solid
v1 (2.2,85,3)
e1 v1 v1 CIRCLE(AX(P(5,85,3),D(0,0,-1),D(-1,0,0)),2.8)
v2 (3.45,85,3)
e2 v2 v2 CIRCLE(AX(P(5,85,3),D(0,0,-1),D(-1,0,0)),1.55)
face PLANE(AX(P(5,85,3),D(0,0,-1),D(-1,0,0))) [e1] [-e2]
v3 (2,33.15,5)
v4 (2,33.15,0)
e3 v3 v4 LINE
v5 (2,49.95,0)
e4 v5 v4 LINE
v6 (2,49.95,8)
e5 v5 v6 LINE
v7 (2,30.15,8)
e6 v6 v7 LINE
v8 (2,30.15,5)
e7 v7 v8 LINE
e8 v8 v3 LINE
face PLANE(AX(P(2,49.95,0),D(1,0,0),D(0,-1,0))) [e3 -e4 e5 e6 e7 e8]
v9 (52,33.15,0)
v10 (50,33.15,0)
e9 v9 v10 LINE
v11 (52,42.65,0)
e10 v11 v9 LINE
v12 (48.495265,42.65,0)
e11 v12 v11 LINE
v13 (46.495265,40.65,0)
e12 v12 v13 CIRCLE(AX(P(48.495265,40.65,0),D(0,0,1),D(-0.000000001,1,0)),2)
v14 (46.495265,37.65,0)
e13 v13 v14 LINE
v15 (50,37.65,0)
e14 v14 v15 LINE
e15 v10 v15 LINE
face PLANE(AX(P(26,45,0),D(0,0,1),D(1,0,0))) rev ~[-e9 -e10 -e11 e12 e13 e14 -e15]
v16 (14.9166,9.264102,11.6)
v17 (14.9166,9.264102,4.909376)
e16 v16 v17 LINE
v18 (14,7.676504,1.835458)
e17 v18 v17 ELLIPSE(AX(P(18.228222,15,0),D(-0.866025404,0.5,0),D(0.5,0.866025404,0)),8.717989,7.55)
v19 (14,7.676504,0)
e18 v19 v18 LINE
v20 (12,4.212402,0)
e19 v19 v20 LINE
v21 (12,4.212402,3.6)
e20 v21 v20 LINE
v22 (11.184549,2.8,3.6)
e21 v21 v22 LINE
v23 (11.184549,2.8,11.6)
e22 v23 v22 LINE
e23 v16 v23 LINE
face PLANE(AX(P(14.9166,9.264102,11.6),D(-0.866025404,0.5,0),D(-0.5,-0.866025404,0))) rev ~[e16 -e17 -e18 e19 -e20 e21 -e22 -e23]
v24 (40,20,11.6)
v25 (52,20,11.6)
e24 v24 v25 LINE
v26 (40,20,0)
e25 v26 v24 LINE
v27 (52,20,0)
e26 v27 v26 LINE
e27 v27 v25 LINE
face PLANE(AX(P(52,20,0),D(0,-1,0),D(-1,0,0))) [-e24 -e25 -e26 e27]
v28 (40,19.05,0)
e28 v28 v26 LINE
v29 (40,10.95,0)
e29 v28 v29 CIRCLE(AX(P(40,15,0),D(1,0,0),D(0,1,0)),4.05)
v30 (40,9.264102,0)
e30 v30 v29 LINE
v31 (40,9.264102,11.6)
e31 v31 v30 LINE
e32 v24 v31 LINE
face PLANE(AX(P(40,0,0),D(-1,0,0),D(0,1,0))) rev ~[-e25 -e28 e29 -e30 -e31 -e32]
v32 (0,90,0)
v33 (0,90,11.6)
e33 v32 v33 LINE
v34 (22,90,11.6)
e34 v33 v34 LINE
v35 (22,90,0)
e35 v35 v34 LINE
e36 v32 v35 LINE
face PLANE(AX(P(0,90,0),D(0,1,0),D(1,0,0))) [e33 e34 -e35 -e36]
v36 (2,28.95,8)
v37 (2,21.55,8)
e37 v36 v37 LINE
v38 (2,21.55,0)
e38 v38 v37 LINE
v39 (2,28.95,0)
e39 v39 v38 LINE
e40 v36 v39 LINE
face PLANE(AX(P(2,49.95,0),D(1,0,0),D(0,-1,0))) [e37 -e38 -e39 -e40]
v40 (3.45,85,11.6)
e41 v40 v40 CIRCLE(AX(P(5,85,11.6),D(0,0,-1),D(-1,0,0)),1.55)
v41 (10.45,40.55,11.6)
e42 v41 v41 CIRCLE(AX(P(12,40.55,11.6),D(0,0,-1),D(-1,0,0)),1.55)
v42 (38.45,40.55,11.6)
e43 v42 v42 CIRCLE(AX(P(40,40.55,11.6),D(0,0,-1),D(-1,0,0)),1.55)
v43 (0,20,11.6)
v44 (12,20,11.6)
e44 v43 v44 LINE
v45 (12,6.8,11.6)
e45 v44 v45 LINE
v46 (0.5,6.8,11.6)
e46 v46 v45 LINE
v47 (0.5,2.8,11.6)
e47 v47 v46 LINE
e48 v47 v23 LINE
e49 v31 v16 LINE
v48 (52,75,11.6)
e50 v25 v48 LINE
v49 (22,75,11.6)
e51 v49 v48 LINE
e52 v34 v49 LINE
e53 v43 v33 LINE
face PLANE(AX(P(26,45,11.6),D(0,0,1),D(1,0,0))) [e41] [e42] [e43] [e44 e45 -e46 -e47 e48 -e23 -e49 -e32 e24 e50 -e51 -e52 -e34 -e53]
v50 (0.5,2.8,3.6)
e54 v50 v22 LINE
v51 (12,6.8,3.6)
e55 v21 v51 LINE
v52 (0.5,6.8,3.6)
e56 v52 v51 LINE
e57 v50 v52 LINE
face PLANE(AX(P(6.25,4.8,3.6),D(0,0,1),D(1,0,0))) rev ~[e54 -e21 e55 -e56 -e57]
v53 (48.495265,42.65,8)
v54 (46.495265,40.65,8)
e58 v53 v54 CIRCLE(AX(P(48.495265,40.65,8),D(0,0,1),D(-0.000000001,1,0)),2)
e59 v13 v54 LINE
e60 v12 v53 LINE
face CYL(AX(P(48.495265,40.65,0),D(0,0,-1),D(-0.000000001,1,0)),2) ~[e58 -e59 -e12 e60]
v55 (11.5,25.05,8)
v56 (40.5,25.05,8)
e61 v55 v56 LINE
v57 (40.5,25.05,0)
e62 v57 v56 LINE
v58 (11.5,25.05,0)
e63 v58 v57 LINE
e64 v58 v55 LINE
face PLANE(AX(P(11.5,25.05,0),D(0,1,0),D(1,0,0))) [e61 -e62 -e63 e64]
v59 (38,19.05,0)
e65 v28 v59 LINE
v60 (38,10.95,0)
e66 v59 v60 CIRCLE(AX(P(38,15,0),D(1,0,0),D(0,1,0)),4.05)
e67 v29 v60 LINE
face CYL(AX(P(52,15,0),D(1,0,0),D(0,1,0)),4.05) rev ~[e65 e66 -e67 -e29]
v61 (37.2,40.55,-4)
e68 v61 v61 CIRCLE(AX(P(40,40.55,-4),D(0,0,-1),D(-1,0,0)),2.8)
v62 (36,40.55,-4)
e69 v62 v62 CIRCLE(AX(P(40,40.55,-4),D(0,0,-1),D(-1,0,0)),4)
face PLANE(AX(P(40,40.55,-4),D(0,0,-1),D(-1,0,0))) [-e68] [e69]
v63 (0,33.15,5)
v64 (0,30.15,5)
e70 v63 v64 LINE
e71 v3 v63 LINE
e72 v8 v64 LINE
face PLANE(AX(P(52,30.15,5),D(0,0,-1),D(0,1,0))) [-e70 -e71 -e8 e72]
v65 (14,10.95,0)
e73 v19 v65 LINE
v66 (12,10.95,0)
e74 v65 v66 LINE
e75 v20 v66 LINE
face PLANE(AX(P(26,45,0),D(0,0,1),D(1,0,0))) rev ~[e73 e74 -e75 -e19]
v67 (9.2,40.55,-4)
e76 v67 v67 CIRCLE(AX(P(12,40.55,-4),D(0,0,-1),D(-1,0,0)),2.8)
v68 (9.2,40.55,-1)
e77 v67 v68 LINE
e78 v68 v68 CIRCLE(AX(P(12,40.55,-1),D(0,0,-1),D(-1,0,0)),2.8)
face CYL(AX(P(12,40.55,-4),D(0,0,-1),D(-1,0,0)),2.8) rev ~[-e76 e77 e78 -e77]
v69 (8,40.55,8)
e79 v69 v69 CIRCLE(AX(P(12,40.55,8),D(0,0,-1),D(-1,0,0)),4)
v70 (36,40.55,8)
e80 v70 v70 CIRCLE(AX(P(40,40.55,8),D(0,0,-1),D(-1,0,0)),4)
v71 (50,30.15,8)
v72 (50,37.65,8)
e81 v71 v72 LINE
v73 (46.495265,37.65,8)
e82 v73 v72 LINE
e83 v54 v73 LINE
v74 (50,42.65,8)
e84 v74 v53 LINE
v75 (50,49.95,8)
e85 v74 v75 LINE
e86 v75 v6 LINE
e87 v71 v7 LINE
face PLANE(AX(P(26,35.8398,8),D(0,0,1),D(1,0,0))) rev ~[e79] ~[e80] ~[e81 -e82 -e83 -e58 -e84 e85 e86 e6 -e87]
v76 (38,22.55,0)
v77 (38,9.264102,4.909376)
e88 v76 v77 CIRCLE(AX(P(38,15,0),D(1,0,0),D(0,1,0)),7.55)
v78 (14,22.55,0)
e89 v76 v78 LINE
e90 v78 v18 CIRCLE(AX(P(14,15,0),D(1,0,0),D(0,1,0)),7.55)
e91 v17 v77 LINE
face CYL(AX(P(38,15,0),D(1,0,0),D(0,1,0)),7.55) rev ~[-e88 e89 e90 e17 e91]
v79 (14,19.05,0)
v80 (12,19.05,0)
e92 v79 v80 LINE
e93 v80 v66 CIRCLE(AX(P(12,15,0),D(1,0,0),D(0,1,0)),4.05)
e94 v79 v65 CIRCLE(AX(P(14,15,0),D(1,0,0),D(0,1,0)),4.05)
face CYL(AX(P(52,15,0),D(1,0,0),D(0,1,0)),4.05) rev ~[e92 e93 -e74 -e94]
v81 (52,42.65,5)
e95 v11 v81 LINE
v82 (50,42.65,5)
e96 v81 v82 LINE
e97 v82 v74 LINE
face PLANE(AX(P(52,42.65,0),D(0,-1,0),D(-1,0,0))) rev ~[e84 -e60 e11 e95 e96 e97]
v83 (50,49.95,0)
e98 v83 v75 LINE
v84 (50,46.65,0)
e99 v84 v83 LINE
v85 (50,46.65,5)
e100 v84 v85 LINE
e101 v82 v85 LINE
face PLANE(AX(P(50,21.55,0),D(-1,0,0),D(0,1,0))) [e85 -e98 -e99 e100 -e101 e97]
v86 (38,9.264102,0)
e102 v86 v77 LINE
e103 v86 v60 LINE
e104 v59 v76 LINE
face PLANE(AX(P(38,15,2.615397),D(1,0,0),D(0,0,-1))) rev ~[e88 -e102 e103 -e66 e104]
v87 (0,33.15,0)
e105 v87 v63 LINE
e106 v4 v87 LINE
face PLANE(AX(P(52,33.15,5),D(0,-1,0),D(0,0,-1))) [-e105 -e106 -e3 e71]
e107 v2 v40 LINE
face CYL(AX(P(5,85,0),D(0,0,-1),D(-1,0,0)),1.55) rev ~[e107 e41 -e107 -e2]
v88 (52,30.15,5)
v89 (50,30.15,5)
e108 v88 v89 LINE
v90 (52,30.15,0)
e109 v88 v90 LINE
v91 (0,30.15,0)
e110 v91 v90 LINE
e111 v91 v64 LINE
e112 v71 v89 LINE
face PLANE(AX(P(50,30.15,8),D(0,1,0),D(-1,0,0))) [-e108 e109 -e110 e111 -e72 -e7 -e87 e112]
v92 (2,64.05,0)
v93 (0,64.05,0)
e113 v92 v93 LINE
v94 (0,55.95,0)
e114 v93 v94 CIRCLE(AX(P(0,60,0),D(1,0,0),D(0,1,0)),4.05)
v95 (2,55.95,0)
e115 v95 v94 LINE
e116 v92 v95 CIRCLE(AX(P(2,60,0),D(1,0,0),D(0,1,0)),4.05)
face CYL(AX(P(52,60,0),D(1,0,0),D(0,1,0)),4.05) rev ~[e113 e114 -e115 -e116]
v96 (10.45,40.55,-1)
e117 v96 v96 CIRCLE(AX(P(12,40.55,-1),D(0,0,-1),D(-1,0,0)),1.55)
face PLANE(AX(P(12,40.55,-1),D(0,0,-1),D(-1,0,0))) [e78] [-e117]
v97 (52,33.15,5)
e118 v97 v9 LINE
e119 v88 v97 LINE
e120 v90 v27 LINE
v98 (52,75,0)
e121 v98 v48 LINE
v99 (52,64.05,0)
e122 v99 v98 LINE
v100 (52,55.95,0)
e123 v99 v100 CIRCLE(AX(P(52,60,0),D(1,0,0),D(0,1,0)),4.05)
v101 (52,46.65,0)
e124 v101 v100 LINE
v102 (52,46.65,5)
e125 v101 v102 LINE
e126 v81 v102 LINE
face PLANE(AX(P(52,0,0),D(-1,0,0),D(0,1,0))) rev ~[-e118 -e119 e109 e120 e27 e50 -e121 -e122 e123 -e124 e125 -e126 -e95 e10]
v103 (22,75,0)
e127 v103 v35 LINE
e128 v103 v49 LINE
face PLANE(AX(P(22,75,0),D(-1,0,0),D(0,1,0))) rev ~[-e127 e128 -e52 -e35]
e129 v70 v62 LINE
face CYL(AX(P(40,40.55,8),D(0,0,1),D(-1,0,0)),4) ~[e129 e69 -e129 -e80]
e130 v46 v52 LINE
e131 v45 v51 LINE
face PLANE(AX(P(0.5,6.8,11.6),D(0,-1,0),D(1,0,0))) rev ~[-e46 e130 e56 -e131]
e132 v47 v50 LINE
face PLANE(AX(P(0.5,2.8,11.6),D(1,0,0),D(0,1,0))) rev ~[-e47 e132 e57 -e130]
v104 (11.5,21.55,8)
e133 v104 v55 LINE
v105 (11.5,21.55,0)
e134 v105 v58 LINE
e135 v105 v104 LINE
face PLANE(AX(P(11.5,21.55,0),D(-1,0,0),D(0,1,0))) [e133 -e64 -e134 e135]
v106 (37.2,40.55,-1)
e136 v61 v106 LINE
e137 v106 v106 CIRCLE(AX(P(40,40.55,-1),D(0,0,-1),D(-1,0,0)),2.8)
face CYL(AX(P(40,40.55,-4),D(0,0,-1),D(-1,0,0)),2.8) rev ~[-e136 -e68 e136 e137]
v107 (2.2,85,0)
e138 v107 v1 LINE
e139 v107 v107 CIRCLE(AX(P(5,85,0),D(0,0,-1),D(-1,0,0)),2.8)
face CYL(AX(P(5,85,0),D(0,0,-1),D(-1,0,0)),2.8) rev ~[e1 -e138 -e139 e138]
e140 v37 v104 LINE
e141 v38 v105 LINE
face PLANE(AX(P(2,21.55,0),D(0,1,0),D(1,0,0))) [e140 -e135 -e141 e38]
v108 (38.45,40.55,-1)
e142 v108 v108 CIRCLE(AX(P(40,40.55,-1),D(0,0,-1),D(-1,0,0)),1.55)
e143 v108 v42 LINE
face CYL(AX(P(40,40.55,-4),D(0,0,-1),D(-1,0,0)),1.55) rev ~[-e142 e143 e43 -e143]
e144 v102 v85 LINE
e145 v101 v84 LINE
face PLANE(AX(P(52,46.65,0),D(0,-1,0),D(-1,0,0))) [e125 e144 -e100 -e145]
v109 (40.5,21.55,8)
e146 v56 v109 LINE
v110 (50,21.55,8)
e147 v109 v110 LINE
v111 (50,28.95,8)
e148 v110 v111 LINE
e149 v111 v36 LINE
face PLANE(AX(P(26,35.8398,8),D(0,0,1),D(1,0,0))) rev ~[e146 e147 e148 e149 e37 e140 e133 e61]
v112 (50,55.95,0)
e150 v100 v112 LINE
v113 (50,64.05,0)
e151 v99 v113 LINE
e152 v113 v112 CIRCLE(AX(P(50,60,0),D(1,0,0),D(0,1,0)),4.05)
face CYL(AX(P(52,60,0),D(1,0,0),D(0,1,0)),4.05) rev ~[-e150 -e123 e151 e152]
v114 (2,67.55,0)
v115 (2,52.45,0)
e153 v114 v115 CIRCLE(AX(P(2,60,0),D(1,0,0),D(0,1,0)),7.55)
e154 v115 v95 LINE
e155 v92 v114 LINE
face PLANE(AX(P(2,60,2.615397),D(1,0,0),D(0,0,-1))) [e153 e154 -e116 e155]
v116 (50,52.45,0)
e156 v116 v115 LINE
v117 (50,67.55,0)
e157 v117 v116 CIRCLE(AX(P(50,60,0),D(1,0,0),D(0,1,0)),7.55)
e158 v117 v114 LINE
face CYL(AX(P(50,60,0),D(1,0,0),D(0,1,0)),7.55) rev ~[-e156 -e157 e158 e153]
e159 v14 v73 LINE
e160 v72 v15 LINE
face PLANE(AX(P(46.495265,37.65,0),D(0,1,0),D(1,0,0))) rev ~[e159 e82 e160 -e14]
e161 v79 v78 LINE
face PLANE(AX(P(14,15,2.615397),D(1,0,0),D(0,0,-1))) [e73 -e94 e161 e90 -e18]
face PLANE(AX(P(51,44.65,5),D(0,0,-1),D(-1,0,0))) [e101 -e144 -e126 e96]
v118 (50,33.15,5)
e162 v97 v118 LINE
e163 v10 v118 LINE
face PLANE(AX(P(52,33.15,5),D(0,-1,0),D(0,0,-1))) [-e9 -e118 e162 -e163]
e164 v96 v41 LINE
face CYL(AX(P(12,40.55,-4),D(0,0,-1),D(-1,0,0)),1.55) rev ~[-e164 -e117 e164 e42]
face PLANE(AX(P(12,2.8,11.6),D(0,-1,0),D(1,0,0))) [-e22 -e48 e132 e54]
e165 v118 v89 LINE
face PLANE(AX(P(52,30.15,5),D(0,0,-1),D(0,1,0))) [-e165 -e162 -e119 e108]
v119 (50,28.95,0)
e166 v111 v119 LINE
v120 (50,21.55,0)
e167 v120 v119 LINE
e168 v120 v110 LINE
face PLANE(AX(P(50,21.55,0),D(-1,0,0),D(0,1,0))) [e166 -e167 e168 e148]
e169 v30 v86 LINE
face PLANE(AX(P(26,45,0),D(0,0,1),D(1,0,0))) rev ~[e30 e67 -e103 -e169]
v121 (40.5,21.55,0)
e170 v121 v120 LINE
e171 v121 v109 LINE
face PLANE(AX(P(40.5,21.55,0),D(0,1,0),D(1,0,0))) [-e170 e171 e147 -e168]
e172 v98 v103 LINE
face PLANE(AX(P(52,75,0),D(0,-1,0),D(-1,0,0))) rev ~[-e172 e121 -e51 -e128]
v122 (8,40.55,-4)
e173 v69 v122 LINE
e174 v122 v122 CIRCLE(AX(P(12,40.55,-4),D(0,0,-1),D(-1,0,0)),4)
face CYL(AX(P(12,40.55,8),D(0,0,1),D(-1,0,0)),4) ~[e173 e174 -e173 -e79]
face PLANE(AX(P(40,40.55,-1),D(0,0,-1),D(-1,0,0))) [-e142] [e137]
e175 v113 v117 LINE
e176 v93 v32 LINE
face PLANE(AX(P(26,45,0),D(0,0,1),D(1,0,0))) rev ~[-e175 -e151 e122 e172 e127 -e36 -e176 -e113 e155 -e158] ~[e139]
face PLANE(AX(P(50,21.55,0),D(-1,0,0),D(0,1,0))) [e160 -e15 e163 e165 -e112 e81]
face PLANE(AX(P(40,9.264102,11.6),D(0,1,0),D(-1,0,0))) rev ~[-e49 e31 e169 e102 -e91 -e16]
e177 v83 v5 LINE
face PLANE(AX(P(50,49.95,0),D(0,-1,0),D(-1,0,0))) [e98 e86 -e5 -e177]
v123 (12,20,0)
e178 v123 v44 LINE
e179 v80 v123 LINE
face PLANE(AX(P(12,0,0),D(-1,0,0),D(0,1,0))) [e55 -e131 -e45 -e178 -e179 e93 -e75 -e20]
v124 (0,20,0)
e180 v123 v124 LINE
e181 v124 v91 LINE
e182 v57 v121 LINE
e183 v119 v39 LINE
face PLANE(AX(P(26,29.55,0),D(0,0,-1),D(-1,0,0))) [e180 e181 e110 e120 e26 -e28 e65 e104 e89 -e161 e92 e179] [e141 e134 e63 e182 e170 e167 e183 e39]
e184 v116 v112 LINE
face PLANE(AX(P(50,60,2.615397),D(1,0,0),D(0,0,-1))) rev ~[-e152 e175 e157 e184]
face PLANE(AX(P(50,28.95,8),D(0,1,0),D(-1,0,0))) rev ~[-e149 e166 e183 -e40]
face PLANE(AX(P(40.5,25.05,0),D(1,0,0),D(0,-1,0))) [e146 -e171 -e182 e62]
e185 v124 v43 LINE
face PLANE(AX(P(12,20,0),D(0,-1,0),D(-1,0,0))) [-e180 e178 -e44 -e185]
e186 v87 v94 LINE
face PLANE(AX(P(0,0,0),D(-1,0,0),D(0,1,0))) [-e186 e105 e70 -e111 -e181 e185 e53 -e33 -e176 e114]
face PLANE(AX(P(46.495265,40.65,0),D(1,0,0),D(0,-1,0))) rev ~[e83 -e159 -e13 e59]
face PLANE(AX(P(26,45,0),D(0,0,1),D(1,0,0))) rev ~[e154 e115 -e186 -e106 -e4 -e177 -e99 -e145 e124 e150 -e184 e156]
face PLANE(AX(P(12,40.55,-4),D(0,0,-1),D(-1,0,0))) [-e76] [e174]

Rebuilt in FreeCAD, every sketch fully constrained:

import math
import FreeCAD as App
import Part
import Sketcher
from FreeCAD import Vector
Q = App.Units.Quantity

doc = App.newDocument("Part")
body = doc.addObject("PartDesign::Body", "Body")

# Sketch on XY plane
sketch1 = body.newObject("Sketcher::SketchObject", "Sketch")
sketch1.AttachmentSupport = (doc.getObject("XY_Plane"), [""])
sketch1.MapMode = "FlatFace"
sketch1.addGeometry([
    Part.LineSegment(Vector(0, 90, 0), Vector(0, 0, 0)),
    Part.LineSegment(Vector(0, 0, 0), Vector(52, 0, 0)),
    Part.LineSegment(Vector(52, 0, 0), Vector(52, 90, 0)),
    Part.LineSegment(Vector(52, 90, 0), Vector(0, 90, 0)),
], False)
sketch1.addConstraint([
    Sketcher.Constraint("Coincident", 0, 2, 1, 1),
    Sketcher.Constraint("Coincident", 1, 2, 2, 1),
    Sketcher.Constraint("Coincident", 2, 2, 3, 1),
    Sketcher.Constraint("Coincident", 3, 2, 0, 1),
    Sketcher.Constraint("Vertical", 0),
    Sketcher.Constraint("Horizontal", 1),
    Sketcher.Constraint("Vertical", 2),
    Sketcher.Constraint("Horizontal", 3),
    Sketcher.Constraint("Coincident", 0, 2, -1, 1),
    Sketcher.Constraint("DistanceX", 1, 1, 1, 2, Q("52 mm")),
    Sketcher.Constraint("DistanceY", 0, 2, 0, 1, Q("90 mm")),
])
pad1 = body.newObject("PartDesign::Pad", "Pad")
pad1.Profile = sketch1
pad1.Length = 11.6

# Sketch on YZ plane
sketch2 = body.newObject("Sketcher::SketchObject", "Sketch001")
sketch2.AttachmentSupport = (doc.getObject("YZ_Plane"), [""])
sketch2.MapMode = "FlatFace"
sketch2.AttachmentOffset = App.Placement(Vector(0, 0, 50), App.Rotation())
sketch2.addGeometry([
    Part.LineSegment(Vector(52, 0, 0), Vector(68, 0, 0)),
    Part.ArcOfCircle(Part.Circle(Vector(60, 0, 0), Vector(0, 0, 1), 8), math.radians(0), math.radians(180)),
], False)
sketch2.addConstraint([
    Sketcher.Constraint("Coincident", 0, 1, 1, 2),
    Sketcher.Constraint("Coincident", 1, 1, 0, 2),
    Sketcher.Constraint("Horizontal", 0),
    Sketcher.Constraint("PointOnObject", 1, 3, -1),
    Sketcher.Constraint("PointOnObject", 0, 1, -1),
    Sketcher.Constraint("Radius", 1, Q("7.55 mm")),
    Sketcher.Constraint("DistanceX", -1, 1, 1, 3, Q("60 mm")),
])
pocket1 = body.newObject("PartDesign::Pocket", "Pocket")
pocket1.Profile = sketch2
pocket1.Length = 48

# Sketch on YZ plane
sketch3 = body.newObject("Sketcher::SketchObject", "Sketch002")
sketch3.AttachmentSupport = (doc.getObject("YZ_Plane"), [""])
sketch3.MapMode = "FlatFace"
sketch3.AttachmentOffset = App.Placement(Vector(0, 0, 38), App.Rotation())
sketch3.addGeometry([
    Part.LineSegment(Vector(7, 0, 0), Vector(23, 0, 0)),
    Part.ArcOfCircle(Part.Circle(Vector(15, 0, 0), Vector(0, 0, 1), 8), math.radians(0), math.radians(180)),
], False)
sketch3.addConstraint([
    Sketcher.Constraint("Coincident", 0, 1, 1, 2),
    Sketcher.Constraint("Coincident", 1, 1, 0, 2),
    Sketcher.Constraint("Horizontal", 0),
    Sketcher.Constraint("PointOnObject", 1, 3, -1),
    Sketcher.Constraint("PointOnObject", 0, 1, -1),
    Sketcher.Constraint("Radius", 1, Q("7.55 mm")),
    Sketcher.Constraint("DistanceX", -1, 1, 1, 3, Q("15 mm")),
])
pocket2 = body.newObject("PartDesign::Pocket", "Pocket001")
pocket2.Profile = sketch3
pocket2.Length = 24

# Sketch on YZ plane
sketch4 = body.newObject("Sketcher::SketchObject", "Sketch003")
sketch4.AttachmentSupport = (doc.getObject("YZ_Plane"), [""])
sketch4.MapMode = "FlatFace"
sketch4.AttachmentOffset = App.Placement(Vector(0, 0, 52), App.Rotation())
sketch4.addGeometry([
    Part.ArcOfCircle(Part.Circle(Vector(60, 0, 0), Vector(0, 0, 1), 4), math.radians(0), math.radians(180)),
    Part.ArcOfCircle(Part.Circle(Vector(60, 0, 0), Vector(0, 0, 1), 4), math.radians(180), math.radians(270)),
    Part.ArcOfCircle(Part.Circle(Vector(60, 0, 0), Vector(0, 0, 1), 4), math.radians(-90), math.radians(0)),
], False)
sketch4.addConstraint([
    Sketcher.Constraint("Tangent", 0, 2, 1, 1),
    Sketcher.Constraint("Tangent", 1, 2, 2, 1),
    Sketcher.Constraint("Tangent", 2, 2, 0, 1),
    Sketcher.Constraint("PointOnObject", 0, 3, -1),
    Sketcher.Constraint("PointOnObject", 0, 2, -1),
    Sketcher.Constraint("PointOnObject", 2, 2, -1),
    Sketcher.Constraint("Vertical", 2, 3, 1, 2),
    Sketcher.Constraint("Radius", 0, Q("4.05 mm")),
    Sketcher.Constraint("DistanceX", -1, 1, 0, 3, Q("60 mm")),
])
pocket3 = body.newObject("PartDesign::Pocket", "Pocket002")
pocket3.Profile = sketch4
pocket3.Type = "ThroughAll"

# Sketch on YZ plane
sketch5 = body.newObject("Sketcher::SketchObject", "Sketch004")
sketch5.AttachmentSupport = (doc.getObject("YZ_Plane"), [""])
sketch5.MapMode = "FlatFace"
sketch5.AttachmentOffset = App.Placement(Vector(0, 0, 52), App.Rotation())
sketch5.addGeometry([
    Part.ArcOfCircle(Part.Circle(Vector(15, 0, 0), Vector(0, 0, 1), 4), math.radians(0), math.radians(180)),
    Part.ArcOfCircle(Part.Circle(Vector(15, 0, 0), Vector(0, 0, 1), 4), math.radians(180), math.radians(270)),
    Part.ArcOfCircle(Part.Circle(Vector(15, 0, 0), Vector(0, 0, 1), 4), math.radians(-90), math.radians(0)),
], False)
sketch5.addConstraint([
    Sketcher.Constraint("Tangent", 0, 2, 1, 1),
    Sketcher.Constraint("Tangent", 1, 2, 2, 1),
    Sketcher.Constraint("Tangent", 2, 2, 0, 1),
    Sketcher.Constraint("PointOnObject", 0, 3, -1),
    Sketcher.Constraint("PointOnObject", 0, 2, -1),
    Sketcher.Constraint("PointOnObject", 2, 2, -1),
    Sketcher.Constraint("Vertical", 2, 3, 1, 2),
    Sketcher.Constraint("Radius", 0, Q("4.05 mm")),
    Sketcher.Constraint("DistanceX", -1, 1, 0, 3, Q("15 mm")),
])
pocket4 = body.newObject("PartDesign::Pocket", "Pocket003")
pocket4.Profile = sketch5
pocket4.Type = "ThroughAll"

# Sketch on XY plane
sketch6 = body.newObject("Sketcher::SketchObject", "Sketch005")
sketch6.AttachmentSupport = (doc.getObject("XY_Plane"), [""])
sketch6.MapMode = "FlatFace"
sketch6.addGeometry([
    Part.LineSegment(Vector(2, 21.6, 0), Vector(2, 50, 0)),  # 0
    Part.LineSegment(Vector(2, 50, 0), Vector(50, 50, 0)),  # 1
    Part.LineSegment(Vector(50, 50, 0), Vector(50, 21.6, 0)),  # 2
    Part.LineSegment(Vector(50, 21.6, 0), Vector(40.5, 21.6, 0)),  # 3
    Part.LineSegment(Vector(40.5, 21.6, 0), Vector(40.5, 25.1, 0)),  # 4
    Part.LineSegment(Vector(40.5, 25.1, 0), Vector(11.5, 25.1, 0)),  # 5
    Part.LineSegment(Vector(11.5, 25.1, 0), Vector(11.5, 21.6, 0)),  # 6
    Part.LineSegment(Vector(11.5, 21.6, 0), Vector(2, 21.6, 0)),  # 7
], False)
sketch6.addConstraint([
    Sketcher.Constraint("Coincident", 0, 2, 1, 1),
    Sketcher.Constraint("Coincident", 1, 2, 2, 1),
    Sketcher.Constraint("Coincident", 2, 2, 3, 1),
    Sketcher.Constraint("Coincident", 3, 2, 4, 1),
    Sketcher.Constraint("Coincident", 4, 2, 5, 1),
    Sketcher.Constraint("Coincident", 5, 2, 6, 1),
    Sketcher.Constraint("Coincident", 6, 2, 7, 1),
    Sketcher.Constraint("Coincident", 7, 2, 0, 1),
    Sketcher.Constraint("Vertical", 0),
    Sketcher.Constraint("Horizontal", 1),
    Sketcher.Constraint("Vertical", 2),
    Sketcher.Constraint("Horizontal", 3),
    Sketcher.Constraint("Vertical", 4),
    Sketcher.Constraint("Horizontal", 5),
    Sketcher.Constraint("Vertical", 6),
    Sketcher.Constraint("Horizontal", 7),
    Sketcher.Constraint("Horizontal", 3, 2, 6, 2),
    Sketcher.Constraint("Equal", 3, 7),
    Sketcher.Constraint("DistanceX", 1, 1, 1, 2, Q("48 mm")),
    Sketcher.Constraint("DistanceX", 5, 2, 5, 1, Q("29 mm")),
    Sketcher.Constraint("DistanceY", 0, 1, 0, 2, Q("28.4 mm")),
    Sketcher.Constraint("DistanceY", 4, 1, 4, 2, Q("3.5 mm")),
    Sketcher.Constraint("DistanceX", -1, 1, 0, 2, Q("2 mm")),
    Sketcher.Constraint("DistanceY", -1, 1, 0, 2, Q("49.95 mm")),
])
pocket5 = body.newObject("PartDesign::Pocket", "Pocket004")
pocket5.Profile = sketch6
pocket5.Length = 8
pocket5.Reversed = True

# Sketch on XY plane
sketch7 = body.newObject("Sketcher::SketchObject", "Sketch006")
sketch7.AttachmentSupport = (doc.getObject("XY_Plane"), [""])
sketch7.MapMode = "FlatFace"
sketch7.AttachmentOffset = App.Placement(Vector(0, 0, 8), App.Rotation())
sketch7.addGeometry(Part.Circle(Vector(40, 40.5, 0), Vector(0, 0, 1), 4), False)
sketch7.addConstraint([
    Sketcher.Constraint("Diameter", 0, Q("8 mm")),
    Sketcher.Constraint("DistanceX", -1, 1, 0, 3, Q("40 mm")),
    Sketcher.Constraint("DistanceY", -1, 1, 0, 3, Q("40.55 mm")),
])
pad2 = body.newObject("PartDesign::Pad", "Pad001")
pad2.Profile = sketch7
pad2.Length = 12
pad2.Reversed = True

# Sketch on XY plane
sketch8 = body.newObject("Sketcher::SketchObject", "Sketch007")
sketch8.AttachmentSupport = (doc.getObject("XY_Plane"), [""])
sketch8.MapMode = "FlatFace"
sketch8.addGeometry([
    Part.LineSegment(Vector(52, 46.6, 0), Vector(52, 42.6, 0)),
    Part.LineSegment(Vector(52, 42.6, 0), Vector(50, 42.6, 0)),
    Part.LineSegment(Vector(50, 42.6, 0), Vector(50, 46.6, 0)),
    Part.LineSegment(Vector(50, 46.6, 0), Vector(52, 46.6, 0)),
], False)
sketch8.addConstraint([
    Sketcher.Constraint("Coincident", 0, 2, 1, 1),
    Sketcher.Constraint("Coincident", 1, 2, 2, 1),
    Sketcher.Constraint("Coincident", 2, 2, 3, 1),
    Sketcher.Constraint("Coincident", 3, 2, 0, 1),
    Sketcher.Constraint("Vertical", 0),
    Sketcher.Constraint("Horizontal", 1),
    Sketcher.Constraint("Vertical", 2),
    Sketcher.Constraint("Horizontal", 3),
    Sketcher.Constraint("DistanceX", 1, 2, 1, 1, Q("2 mm")),
    Sketcher.Constraint("DistanceY", 0, 2, 0, 1, Q("4 mm")),
    Sketcher.Constraint("DistanceX", -1, 1, 0, 2, Q("52 mm")),
    Sketcher.Constraint("DistanceY", -1, 1, 0, 2, Q("42.65 mm")),
])
pocket6 = body.newObject("PartDesign::Pocket", "Pocket005")
pocket6.Profile = sketch8
pocket6.Length = 5
pocket6.Reversed = True

# Sketch on XY plane
sketch9 = body.newObject("Sketcher::SketchObject", "Sketch008")
sketch9.AttachmentSupport = (doc.getObject("XY_Plane"), [""])
sketch9.MapMode = "FlatFace"
sketch9.addGeometry([
    Part.LineSegment(Vector(48.5, 42.6, 0), Vector(52, 42.6, 0)),  # 0
    Part.LineSegment(Vector(52, 42.6, 0), Vector(52, 37.6, 0)),  # 1
    Part.LineSegment(Vector(52, 37.6, 0), Vector(46.5, 37.6, 0)),  # 2
    Part.LineSegment(Vector(46.5, 37.6, 0), Vector(46.5, 40.6, 0)),  # 3
    Part.ArcOfCircle(Part.Circle(Vector(48.5, 40.6, 0), Vector(0, 0, 1), 2), math.radians(90), math.radians(180)),  # 4
], False)
sketch9.addConstraint([
    Sketcher.Constraint("Coincident", 0, 2, 1, 1),
    Sketcher.Constraint("Coincident", 1, 2, 2, 1),
    Sketcher.Constraint("Coincident", 2, 2, 3, 1),
    Sketcher.Constraint("Tangent", 3, 2, 4, 2),
    Sketcher.Constraint("Tangent", 4, 1, 0, 1),
    Sketcher.Constraint("Horizontal", 0),
    Sketcher.Constraint("Vertical", 1),
    Sketcher.Constraint("Horizontal", 2),
    Sketcher.Constraint("Vertical", 3),
    Sketcher.Constraint("Radius", 4, Q("2 mm")),
    Sketcher.Constraint("DistanceY", 1, 2, 1, 1, Q("5 mm")),
    Sketcher.Constraint("DistanceX", -1, 1, 0, 2, Q("52 mm")),
    Sketcher.Constraint("DistanceY", -1, 1, 4, 3, Q("40.65 mm")),
    Sketcher.Constraint("DistanceX", 0, 1, 0, 2, Q("3.504735 mm")),
])
pad3 = body.newObject("PartDesign::Pad", "Pad002")
pad3.Profile = sketch9
pad3.Length = 8

# Sketch on XY plane
sketch10 = body.newObject("Sketcher::SketchObject", "Sketch009")
sketch10.AttachmentSupport = (doc.getObject("XY_Plane"), [""])
sketch10.MapMode = "FlatFace"
sketch10.AttachmentOffset = App.Placement(Vector(0, 0, -4), App.Rotation())
sketch10.addGeometry(Part.Circle(Vector(40, 40.5, 0), Vector(0, 0, 1), 1.6), False)
sketch10.addConstraint([
    Sketcher.Constraint("Diameter", 0, Q("3.1 mm")),
    Sketcher.Constraint("DistanceX", -1, 1, 0, 3, Q("40 mm")),
    Sketcher.Constraint("DistanceY", -1, 1, 0, 3, Q("40.55 mm")),
])
pocket7 = body.newObject("PartDesign::Pocket", "Pocket006")
pocket7.Profile = sketch10
pocket7.Type = "ThroughAll"
pocket7.Reversed = True

# Sketch on XY plane
sketch11 = body.newObject("Sketcher::SketchObject", "Sketch010")
sketch11.AttachmentSupport = (doc.getObject("XY_Plane"), [""])
sketch11.MapMode = "FlatFace"
sketch11.AttachmentOffset = App.Placement(Vector(0, 0, -4), App.Rotation())
sketch11.addGeometry([
    Part.Circle(Vector(40, 40.5, 0), Vector(0, 0, 1), 2.8),
    Part.Circle(Vector(40, 40.5, 0), Vector(0, 0, 1), 1.6),
], False)
sketch11.addConstraint([
    Sketcher.Constraint("Coincident", 1, 3, 0, 3),
    Sketcher.Constraint("Diameter", 0, Q("5.6 mm")),
    Sketcher.Constraint("Diameter", 1, Q("3.1 mm")),
    Sketcher.Constraint("DistanceX", -1, 1, 0, 3, Q("40 mm")),
    Sketcher.Constraint("DistanceY", -1, 1, 0, 3, Q("40.55 mm")),
])
pocket8 = body.newObject("PartDesign::Pocket", "Pocket007")
pocket8.Profile = sketch11
pocket8.Length = 3
pocket8.Reversed = True

# Sketch on YZ plane
sketch12 = body.newObject("Sketcher::SketchObject", "Sketch011")
sketch12.AttachmentSupport = (doc.getObject("YZ_Plane"), [""])
sketch12.MapMode = "FlatFace"
sketch12.AttachmentOffset = App.Placement(Vector(0, 0, 52), App.Rotation())
sketch12.addGeometry([
    Part.LineSegment(Vector(33.1, 5, 0), Vector(30.1, 5, 0)),
    Part.LineSegment(Vector(30.1, 5, 0), Vector(30.1, 0, 0)),
    Part.LineSegment(Vector(30.1, 0, 0), Vector(33.1, 0, 0)),
    Part.LineSegment(Vector(33.1, 0, 0), Vector(33.1, 5, 0)),
], False)
sketch12.addConstraint([
    Sketcher.Constraint("Coincident", 0, 2, 1, 1),
    Sketcher.Constraint("Coincident", 1, 2, 2, 1),
    Sketcher.Constraint("Coincident", 2, 2, 3, 1),
    Sketcher.Constraint("Coincident", 3, 2, 0, 1),
    Sketcher.Constraint("Horizontal", 0),
    Sketcher.Constraint("Vertical", 1),
    Sketcher.Constraint("Horizontal", 2),
    Sketcher.Constraint("Vertical", 3),
    Sketcher.Constraint("PointOnObject", 1, 2, -1),
    Sketcher.Constraint("DistanceX", 0, 2, 0, 1, Q("3 mm")),
    Sketcher.Constraint("DistanceY", 1, 2, 1, 1, Q("5 mm")),
    Sketcher.Constraint("DistanceX", -1, 1, 0, 2, Q("30.15 mm")),
])
pocket9 = body.newObject("PartDesign::Pocket", "Pocket008")
pocket9.Profile = sketch12
pocket9.Type = "ThroughAll"

# Sketch on XY plane
sketch13 = body.newObject("Sketcher::SketchObject", "Sketch012")
sketch13.AttachmentSupport = (doc.getObject("XY_Plane"), [""])
sketch13.MapMode = "FlatFace"
sketch13.addGeometry([
    Part.LineSegment(Vector(52, 90, 0), Vector(52, 75, 0)),
    Part.LineSegment(Vector(52, 75, 0), Vector(22, 75, 0)),
    Part.LineSegment(Vector(22, 75, 0), Vector(22, 90, 0)),
    Part.LineSegment(Vector(22, 90, 0), Vector(52, 90, 0)),
], False)
sketch13.addConstraint([
    Sketcher.Constraint("Coincident", 0, 2, 1, 1),
    Sketcher.Constraint("Coincident", 1, 2, 2, 1),
    Sketcher.Constraint("Coincident", 2, 2, 3, 1),
    Sketcher.Constraint("Coincident", 3, 2, 0, 1),
    Sketcher.Constraint("Vertical", 0),
    Sketcher.Constraint("Horizontal", 1),
    Sketcher.Constraint("Vertical", 2),
    Sketcher.Constraint("Horizontal", 3),
    Sketcher.Constraint("DistanceX", 1, 2, 1, 1, Q("30 mm")),
    Sketcher.Constraint("DistanceY", 0, 2, 0, 1, Q("15 mm")),
    Sketcher.Constraint("DistanceX", -1, 1, 0, 2, Q("52 mm")),
    Sketcher.Constraint("DistanceY", -1, 1, 0, 2, Q("75 mm")),
])
pocket10 = body.newObject("PartDesign::Pocket", "Pocket009")
pocket10.Profile = sketch13
pocket10.Length = 12
pocket10.Reversed = True

# Sketch on XY plane
sketch14 = body.newObject("Sketcher::SketchObject", "Sketch013")
sketch14.AttachmentSupport = (doc.getObject("XY_Plane"), [""])
sketch14.MapMode = "FlatFace"
sketch14.addGeometry(Part.Circle(Vector(5, 85, 0), Vector(0, 0, 1), 1.6), False)
sketch14.addConstraint([
    Sketcher.Constraint("Diameter", 0, Q("3.1 mm")),
    Sketcher.Constraint("DistanceX", -1, 1, 0, 3, Q("5 mm")),
    Sketcher.Constraint("DistanceY", -1, 1, 0, 3, Q("85 mm")),
])
pocket11 = body.newObject("PartDesign::Pocket", "Pocket010")
pocket11.Profile = sketch14
pocket11.Length = 12
pocket11.Reversed = True

# Sketch on XY plane
sketch15 = body.newObject("Sketcher::SketchObject", "Sketch014")
sketch15.AttachmentSupport = (doc.getObject("XY_Plane"), [""])
sketch15.MapMode = "FlatFace"
sketch15.addGeometry([
    Part.Circle(Vector(5, 85, 0), Vector(0, 0, 1), 2.8),
    Part.Circle(Vector(5, 85, 0), Vector(0, 0, 1), 1.6),
], False)
sketch15.addConstraint([
    Sketcher.Constraint("Coincident", 1, 3, 0, 3),
    Sketcher.Constraint("Diameter", 0, Q("5.6 mm")),
    Sketcher.Constraint("Diameter", 1, Q("3.1 mm")),
    Sketcher.Constraint("DistanceX", -1, 1, 0, 3, Q("5 mm")),
    Sketcher.Constraint("DistanceY", -1, 1, 0, 3, Q("85 mm")),
])
pocket12 = body.newObject("PartDesign::Pocket", "Pocket011")
pocket12.Profile = sketch15
pocket12.Length = 3
pocket12.Reversed = True

# Sketch on XY plane
sketch16 = body.newObject("Sketcher::SketchObject", "Sketch015")
sketch16.AttachmentSupport = (doc.getObject("XY_Plane"), [""])
sketch16.MapMode = "FlatFace"
sketch16.AttachmentOffset = App.Placement(Vector(0, 0, 8), App.Rotation())
sketch16.addGeometry([
    Part.LineSegment(Vector(50, 30.1, 0), Vector(50, 28.9, 0)),
    Part.LineSegment(Vector(50, 28.9, 0), Vector(2, 28.9, 0)),
    Part.LineSegment(Vector(2, 28.9, 0), Vector(2, 30.1, 0)),
    Part.LineSegment(Vector(2, 30.1, 0), Vector(50, 30.1, 0)),
], False)
sketch16.addConstraint([
    Sketcher.Constraint("Coincident", 0, 2, 1, 1),
    Sketcher.Constraint("Coincident", 1, 2, 2, 1),
    Sketcher.Constraint("Coincident", 2, 2, 3, 1),
    Sketcher.Constraint("Coincident", 3, 2, 0, 1),
    Sketcher.Constraint("Vertical", 0),
    Sketcher.Constraint("Horizontal", 1),
    Sketcher.Constraint("Vertical", 2),
    Sketcher.Constraint("Horizontal", 3),
    Sketcher.Constraint("DistanceX", 1, 2, 1, 1, Q("48 mm")),
    Sketcher.Constraint("DistanceY", 0, 2, 0, 1, Q("1.2 mm")),
    Sketcher.Constraint("DistanceX", -1, 1, 0, 2, Q("50 mm")),
    Sketcher.Constraint("DistanceY", -1, 1, 0, 2, Q("28.95 mm")),
])
pad4 = body.newObject("PartDesign::Pad", "Pad003")
pad4.Profile = sketch16
pad4.Length = 8
pad4.Reversed = True

# Sketch on XY plane
sketch17 = body.newObject("Sketcher::SketchObject", "Sketch016")
sketch17.AttachmentSupport = (doc.getObject("XY_Plane"), [""])
sketch17.MapMode = "FlatFace"
sketch17.addGeometry([
    Part.LineSegment(Vector(52, 20, 0), Vector(52, 0, 0)),
    Part.LineSegment(Vector(52, 0, 0), Vector(40, 0, 0)),
    Part.LineSegment(Vector(40, 0, 0), Vector(40, 20, 0)),
    Part.LineSegment(Vector(40, 20, 0), Vector(52, 20, 0)),
], False)
sketch17.addConstraint([
    Sketcher.Constraint("Coincident", 0, 2, 1, 1),
    Sketcher.Constraint("Coincident", 1, 2, 2, 1),
    Sketcher.Constraint("Coincident", 2, 2, 3, 1),
    Sketcher.Constraint("Coincident", 3, 2, 0, 1),
    Sketcher.Constraint("Vertical", 0),
    Sketcher.Constraint("Horizontal", 1),
    Sketcher.Constraint("Vertical", 2),
    Sketcher.Constraint("Horizontal", 3),
    Sketcher.Constraint("PointOnObject", 0, 2, -1),
    Sketcher.Constraint("DistanceX", 1, 2, 1, 1, Q("12 mm")),
    Sketcher.Constraint("DistanceY", 0, 2, 0, 1, Q("20 mm")),
    Sketcher.Constraint("DistanceX", -1, 1, 0, 2, Q("52 mm")),
])
pocket13 = body.newObject("PartDesign::Pocket", "Pocket012")
pocket13.Profile = sketch17
pocket13.Type = "ThroughAll"
pocket13.Reversed = True

# Sketch on XY plane
sketch18 = body.newObject("Sketcher::SketchObject", "Sketch017")
sketch18.AttachmentSupport = (doc.getObject("XY_Plane"), [""])
sketch18.MapMode = "FlatFace"
sketch18.addGeometry([
    Part.LineSegment(Vector(12, 20, 0), Vector(12, 0, 0)),
    Part.LineSegment(Vector(12, 0, 0), Vector(0, 0, 0)),
    Part.LineSegment(Vector(0, 0, 0), Vector(0, 20, 0)),
    Part.LineSegment(Vector(0, 20, 0), Vector(12, 20, 0)),
], False)
sketch18.addConstraint([
    Sketcher.Constraint("Coincident", 0, 2, 1, 1),
    Sketcher.Constraint("Coincident", 1, 2, 2, 1),
    Sketcher.Constraint("Coincident", 2, 2, 3, 1),
    Sketcher.Constraint("Coincident", 3, 2, 0, 1),
    Sketcher.Constraint("Vertical", 0),
    Sketcher.Constraint("Horizontal", 1),
    Sketcher.Constraint("Vertical", 2),
    Sketcher.Constraint("Horizontal", 3),
    Sketcher.Constraint("Coincident", 1, 2, -1, 1),
    Sketcher.Constraint("DistanceX", 1, 2, 1, 1, Q("12 mm")),
    Sketcher.Constraint("DistanceY", 0, 2, 0, 1, Q("20 mm")),
])
pocket14 = body.newObject("PartDesign::Pocket", "Pocket013")
pocket14.Profile = sketch18
pocket14.Type = "ThroughAll"
pocket14.Reversed = True

# Sketch on XY plane
sketch19 = body.newObject("Sketcher::SketchObject", "Sketch018")
sketch19.AttachmentSupport = (doc.getObject("XY_Plane"), [""])
sketch19.MapMode = "FlatFace"
sketch19.AttachmentOffset = App.Placement(Vector(0, 0, 11.6), App.Rotation())
sketch19.addGeometry([
    Part.LineSegment(Vector(0.5, 6.8, 0), Vector(0.5, 2.8, 0)),
    Part.LineSegment(Vector(0.5, 2.8, 0), Vector(12, 2.8, 0)),
    Part.LineSegment(Vector(12, 2.8, 0), Vector(12, 6.8, 0)),
    Part.LineSegment(Vector(12, 6.8, 0), Vector(0.5, 6.8, 0)),
], False)
sketch19.addConstraint([
    Sketcher.Constraint("Coincident", 0, 2, 1, 1),
    Sketcher.Constraint("Coincident", 1, 2, 2, 1),
    Sketcher.Constraint("Coincident", 2, 2, 3, 1),
    Sketcher.Constraint("Coincident", 3, 2, 0, 1),
    Sketcher.Constraint("Vertical", 0),
    Sketcher.Constraint("Horizontal", 1),
    Sketcher.Constraint("Vertical", 2),
    Sketcher.Constraint("Horizontal", 3),
    Sketcher.Constraint("DistanceY", 0, 2, 0, 1, Q("4 mm")),
    Sketcher.Constraint("DistanceX", 1, 1, 1, 2, Q("11.5 mm")),
    Sketcher.Constraint("DistanceX", -1, 1, 1, 2, Q("12 mm")),
    Sketcher.Constraint("DistanceY", -1, 1, 0, 2, Q("2.8 mm")),
])
pad5 = body.newObject("PartDesign::Pad", "Pad004")
pad5.Profile = sketch19
pad5.Length = 8
pad5.Reversed = True

# Sketch on XY plane
sketch20 = body.newObject("Sketcher::SketchObject", "Sketch019")
sketch20.AttachmentSupport = (doc.getObject("XY_Plane"), [""])
sketch20.MapMode = "FlatFace"
sketch20.AttachmentOffset = App.Placement(Vector(0, 0, 8), App.Rotation())
sketch20.addGeometry(Part.Circle(Vector(12, 40.5, 0), Vector(0, 0, 1), 4), False)
sketch20.addConstraint([
    Sketcher.Constraint("Diameter", 0, Q("8 mm")),
    Sketcher.Constraint("DistanceX", -1, 1, 0, 3, Q("12 mm")),
    Sketcher.Constraint("DistanceY", -1, 1, 0, 3, Q("40.55 mm")),
])
pad6 = body.newObject("PartDesign::Pad", "Pad005")
pad6.Profile = sketch20
pad6.Length = 12
pad6.Reversed = True

# Sketch on XY plane
sketch21 = body.newObject("Sketcher::SketchObject", "Sketch020")
sketch21.AttachmentSupport = (doc.getObject("XY_Plane"), [""])
sketch21.MapMode = "FlatFace"
sketch21.AttachmentOffset = App.Placement(Vector(0, 0, -4), App.Rotation())
sketch21.addGeometry(Part.Circle(Vector(12, 40.5, 0), Vector(0, 0, 1), 1.6), False)
sketch21.addConstraint([
    Sketcher.Constraint("Diameter", 0, Q("3.1 mm")),
    Sketcher.Constraint("DistanceX", -1, 1, 0, 3, Q("12 mm")),
    Sketcher.Constraint("DistanceY", -1, 1, 0, 3, Q("40.55 mm")),
])
pocket15 = body.newObject("PartDesign::Pocket", "Pocket014")
pocket15.Profile = sketch21
pocket15.Type = "ThroughAll"
pocket15.Reversed = True

# Sketch on XY plane
sketch22 = body.newObject("Sketcher::SketchObject", "Sketch021")
sketch22.AttachmentSupport = (doc.getObject("XY_Plane"), [""])
sketch22.MapMode = "FlatFace"
sketch22.AttachmentOffset = App.Placement(Vector(0, 0, -4), App.Rotation())
sketch22.addGeometry([
    Part.Circle(Vector(12, 40.5, 0), Vector(0, 0, 1), 2.8),
    Part.Circle(Vector(12, 40.5, 0), Vector(0, 0, 1), 1.6),
], False)
sketch22.addConstraint([
    Sketcher.Constraint("Coincident", 1, 3, 0, 3),
    Sketcher.Constraint("Diameter", 0, Q("5.6 mm")),
    Sketcher.Constraint("Diameter", 1, Q("3.1 mm")),
    Sketcher.Constraint("DistanceX", -1, 1, 0, 3, Q("12 mm")),
    Sketcher.Constraint("DistanceY", -1, 1, 0, 3, Q("40.55 mm")),
])
pocket16 = body.newObject("PartDesign::Pocket", "Pocket015")
pocket16.Profile = sketch22
pocket16.Length = 3
pocket16.Reversed = True

# Sketch on XY plane
sketch23 = body.newObject("Sketcher::SketchObject", "Sketch022")
sketch23.AttachmentSupport = (doc.getObject("XY_Plane"), [""])
sketch23.MapMode = "FlatFace"
sketch23.AttachmentOffset = App.Placement(Vector(0, 0, 11.6), App.Rotation())
sketch23.addGeometry([
    Part.LineSegment(Vector(12, 2.8, 0), Vector(12, 0, 0)),
    Part.LineSegment(Vector(12, 0, 0), Vector(40, 0, 0)),
    Part.LineSegment(Vector(40, 0, 0), Vector(40, 2.8, 0)),
    Part.LineSegment(Vector(40, 2.8, 0), Vector(12, 2.8, 0)),
], False)
sketch23.addConstraint([
    Sketcher.Constraint("Coincident", 0, 2, 1, 1),
    Sketcher.Constraint("Coincident", 1, 2, 2, 1),
    Sketcher.Constraint("Coincident", 2, 2, 3, 1),
    Sketcher.Constraint("Coincident", 3, 2, 0, 1),
    Sketcher.Constraint("Vertical", 0),
    Sketcher.Constraint("Horizontal", 1),
    Sketcher.Constraint("Vertical", 2),
    Sketcher.Constraint("Horizontal", 3),
    Sketcher.Constraint("PointOnObject", 0, 2, -1),
    Sketcher.Constraint("DistanceX", 1, 1, 1, 2, Q("28 mm")),
    Sketcher.Constraint("DistanceY", 0, 2, 0, 1, Q("2.8 mm")),
    Sketcher.Constraint("DistanceX", -1, 1, 0, 2, Q("12 mm")),
])
pocket17 = body.newObject("PartDesign::Pocket", "Pocket016")
pocket17.Profile = sketch23
pocket17.Type = "ThroughAll"

# Sketch on XY plane
sketch24 = body.newObject("Sketcher::SketchObject", "Sketch023")
sketch24.AttachmentSupport = (doc.getObject("XY_Plane"), [""])
sketch24.MapMode = "FlatFace"
sketch24.AttachmentOffset = App.Placement(Vector(0, 0, 11.6), App.Rotation())
sketch24.addGeometry([
    Part.LineSegment(Vector(11, 3, 0), Vector(40, 3, 0)),
    Part.LineSegment(Vector(40, 3, 0), Vector(40, 9, 0)),
    Part.LineSegment(Vector(40, 9, 0), Vector(15, 9, 0)),
    Part.LineSegment(Vector(15, 9, 0), Vector(11, 3, 0)),
], False)
sketch24.addConstraint([
    Sketcher.Constraint("Coincident", 0, 2, 1, 1),
    Sketcher.Constraint("Coincident", 1, 2, 2, 1),
    Sketcher.Constraint("Coincident", 2, 2, 3, 1),
    Sketcher.Constraint("Coincident", 3, 2, 0, 1),
    Sketcher.Constraint("Horizontal", 0),
    Sketcher.Constraint("Vertical", 1),
    Sketcher.Constraint("Horizontal", 2),
    Sketcher.Constraint("Angle", 3, Q("-120 deg")),
    Sketcher.Constraint("DistanceX", -1, 1, 0, 2, Q("40 mm")),
    Sketcher.Constraint("DistanceY", -1, 1, 0, 2, Q("2.8 mm")),
    Sketcher.Constraint("DistanceX", 2, 2, 2, 1, Q("25.0834 mm")),
    Sketcher.Constraint("DistanceY", 1, 1, 1, 2, Q("6.464102 mm")),
])
pocket18 = body.newObject("PartDesign::Pocket", "Pocket017")
pocket18.Profile = sketch24
pocket18.Type = "ThroughAll"

doc.recompute()
